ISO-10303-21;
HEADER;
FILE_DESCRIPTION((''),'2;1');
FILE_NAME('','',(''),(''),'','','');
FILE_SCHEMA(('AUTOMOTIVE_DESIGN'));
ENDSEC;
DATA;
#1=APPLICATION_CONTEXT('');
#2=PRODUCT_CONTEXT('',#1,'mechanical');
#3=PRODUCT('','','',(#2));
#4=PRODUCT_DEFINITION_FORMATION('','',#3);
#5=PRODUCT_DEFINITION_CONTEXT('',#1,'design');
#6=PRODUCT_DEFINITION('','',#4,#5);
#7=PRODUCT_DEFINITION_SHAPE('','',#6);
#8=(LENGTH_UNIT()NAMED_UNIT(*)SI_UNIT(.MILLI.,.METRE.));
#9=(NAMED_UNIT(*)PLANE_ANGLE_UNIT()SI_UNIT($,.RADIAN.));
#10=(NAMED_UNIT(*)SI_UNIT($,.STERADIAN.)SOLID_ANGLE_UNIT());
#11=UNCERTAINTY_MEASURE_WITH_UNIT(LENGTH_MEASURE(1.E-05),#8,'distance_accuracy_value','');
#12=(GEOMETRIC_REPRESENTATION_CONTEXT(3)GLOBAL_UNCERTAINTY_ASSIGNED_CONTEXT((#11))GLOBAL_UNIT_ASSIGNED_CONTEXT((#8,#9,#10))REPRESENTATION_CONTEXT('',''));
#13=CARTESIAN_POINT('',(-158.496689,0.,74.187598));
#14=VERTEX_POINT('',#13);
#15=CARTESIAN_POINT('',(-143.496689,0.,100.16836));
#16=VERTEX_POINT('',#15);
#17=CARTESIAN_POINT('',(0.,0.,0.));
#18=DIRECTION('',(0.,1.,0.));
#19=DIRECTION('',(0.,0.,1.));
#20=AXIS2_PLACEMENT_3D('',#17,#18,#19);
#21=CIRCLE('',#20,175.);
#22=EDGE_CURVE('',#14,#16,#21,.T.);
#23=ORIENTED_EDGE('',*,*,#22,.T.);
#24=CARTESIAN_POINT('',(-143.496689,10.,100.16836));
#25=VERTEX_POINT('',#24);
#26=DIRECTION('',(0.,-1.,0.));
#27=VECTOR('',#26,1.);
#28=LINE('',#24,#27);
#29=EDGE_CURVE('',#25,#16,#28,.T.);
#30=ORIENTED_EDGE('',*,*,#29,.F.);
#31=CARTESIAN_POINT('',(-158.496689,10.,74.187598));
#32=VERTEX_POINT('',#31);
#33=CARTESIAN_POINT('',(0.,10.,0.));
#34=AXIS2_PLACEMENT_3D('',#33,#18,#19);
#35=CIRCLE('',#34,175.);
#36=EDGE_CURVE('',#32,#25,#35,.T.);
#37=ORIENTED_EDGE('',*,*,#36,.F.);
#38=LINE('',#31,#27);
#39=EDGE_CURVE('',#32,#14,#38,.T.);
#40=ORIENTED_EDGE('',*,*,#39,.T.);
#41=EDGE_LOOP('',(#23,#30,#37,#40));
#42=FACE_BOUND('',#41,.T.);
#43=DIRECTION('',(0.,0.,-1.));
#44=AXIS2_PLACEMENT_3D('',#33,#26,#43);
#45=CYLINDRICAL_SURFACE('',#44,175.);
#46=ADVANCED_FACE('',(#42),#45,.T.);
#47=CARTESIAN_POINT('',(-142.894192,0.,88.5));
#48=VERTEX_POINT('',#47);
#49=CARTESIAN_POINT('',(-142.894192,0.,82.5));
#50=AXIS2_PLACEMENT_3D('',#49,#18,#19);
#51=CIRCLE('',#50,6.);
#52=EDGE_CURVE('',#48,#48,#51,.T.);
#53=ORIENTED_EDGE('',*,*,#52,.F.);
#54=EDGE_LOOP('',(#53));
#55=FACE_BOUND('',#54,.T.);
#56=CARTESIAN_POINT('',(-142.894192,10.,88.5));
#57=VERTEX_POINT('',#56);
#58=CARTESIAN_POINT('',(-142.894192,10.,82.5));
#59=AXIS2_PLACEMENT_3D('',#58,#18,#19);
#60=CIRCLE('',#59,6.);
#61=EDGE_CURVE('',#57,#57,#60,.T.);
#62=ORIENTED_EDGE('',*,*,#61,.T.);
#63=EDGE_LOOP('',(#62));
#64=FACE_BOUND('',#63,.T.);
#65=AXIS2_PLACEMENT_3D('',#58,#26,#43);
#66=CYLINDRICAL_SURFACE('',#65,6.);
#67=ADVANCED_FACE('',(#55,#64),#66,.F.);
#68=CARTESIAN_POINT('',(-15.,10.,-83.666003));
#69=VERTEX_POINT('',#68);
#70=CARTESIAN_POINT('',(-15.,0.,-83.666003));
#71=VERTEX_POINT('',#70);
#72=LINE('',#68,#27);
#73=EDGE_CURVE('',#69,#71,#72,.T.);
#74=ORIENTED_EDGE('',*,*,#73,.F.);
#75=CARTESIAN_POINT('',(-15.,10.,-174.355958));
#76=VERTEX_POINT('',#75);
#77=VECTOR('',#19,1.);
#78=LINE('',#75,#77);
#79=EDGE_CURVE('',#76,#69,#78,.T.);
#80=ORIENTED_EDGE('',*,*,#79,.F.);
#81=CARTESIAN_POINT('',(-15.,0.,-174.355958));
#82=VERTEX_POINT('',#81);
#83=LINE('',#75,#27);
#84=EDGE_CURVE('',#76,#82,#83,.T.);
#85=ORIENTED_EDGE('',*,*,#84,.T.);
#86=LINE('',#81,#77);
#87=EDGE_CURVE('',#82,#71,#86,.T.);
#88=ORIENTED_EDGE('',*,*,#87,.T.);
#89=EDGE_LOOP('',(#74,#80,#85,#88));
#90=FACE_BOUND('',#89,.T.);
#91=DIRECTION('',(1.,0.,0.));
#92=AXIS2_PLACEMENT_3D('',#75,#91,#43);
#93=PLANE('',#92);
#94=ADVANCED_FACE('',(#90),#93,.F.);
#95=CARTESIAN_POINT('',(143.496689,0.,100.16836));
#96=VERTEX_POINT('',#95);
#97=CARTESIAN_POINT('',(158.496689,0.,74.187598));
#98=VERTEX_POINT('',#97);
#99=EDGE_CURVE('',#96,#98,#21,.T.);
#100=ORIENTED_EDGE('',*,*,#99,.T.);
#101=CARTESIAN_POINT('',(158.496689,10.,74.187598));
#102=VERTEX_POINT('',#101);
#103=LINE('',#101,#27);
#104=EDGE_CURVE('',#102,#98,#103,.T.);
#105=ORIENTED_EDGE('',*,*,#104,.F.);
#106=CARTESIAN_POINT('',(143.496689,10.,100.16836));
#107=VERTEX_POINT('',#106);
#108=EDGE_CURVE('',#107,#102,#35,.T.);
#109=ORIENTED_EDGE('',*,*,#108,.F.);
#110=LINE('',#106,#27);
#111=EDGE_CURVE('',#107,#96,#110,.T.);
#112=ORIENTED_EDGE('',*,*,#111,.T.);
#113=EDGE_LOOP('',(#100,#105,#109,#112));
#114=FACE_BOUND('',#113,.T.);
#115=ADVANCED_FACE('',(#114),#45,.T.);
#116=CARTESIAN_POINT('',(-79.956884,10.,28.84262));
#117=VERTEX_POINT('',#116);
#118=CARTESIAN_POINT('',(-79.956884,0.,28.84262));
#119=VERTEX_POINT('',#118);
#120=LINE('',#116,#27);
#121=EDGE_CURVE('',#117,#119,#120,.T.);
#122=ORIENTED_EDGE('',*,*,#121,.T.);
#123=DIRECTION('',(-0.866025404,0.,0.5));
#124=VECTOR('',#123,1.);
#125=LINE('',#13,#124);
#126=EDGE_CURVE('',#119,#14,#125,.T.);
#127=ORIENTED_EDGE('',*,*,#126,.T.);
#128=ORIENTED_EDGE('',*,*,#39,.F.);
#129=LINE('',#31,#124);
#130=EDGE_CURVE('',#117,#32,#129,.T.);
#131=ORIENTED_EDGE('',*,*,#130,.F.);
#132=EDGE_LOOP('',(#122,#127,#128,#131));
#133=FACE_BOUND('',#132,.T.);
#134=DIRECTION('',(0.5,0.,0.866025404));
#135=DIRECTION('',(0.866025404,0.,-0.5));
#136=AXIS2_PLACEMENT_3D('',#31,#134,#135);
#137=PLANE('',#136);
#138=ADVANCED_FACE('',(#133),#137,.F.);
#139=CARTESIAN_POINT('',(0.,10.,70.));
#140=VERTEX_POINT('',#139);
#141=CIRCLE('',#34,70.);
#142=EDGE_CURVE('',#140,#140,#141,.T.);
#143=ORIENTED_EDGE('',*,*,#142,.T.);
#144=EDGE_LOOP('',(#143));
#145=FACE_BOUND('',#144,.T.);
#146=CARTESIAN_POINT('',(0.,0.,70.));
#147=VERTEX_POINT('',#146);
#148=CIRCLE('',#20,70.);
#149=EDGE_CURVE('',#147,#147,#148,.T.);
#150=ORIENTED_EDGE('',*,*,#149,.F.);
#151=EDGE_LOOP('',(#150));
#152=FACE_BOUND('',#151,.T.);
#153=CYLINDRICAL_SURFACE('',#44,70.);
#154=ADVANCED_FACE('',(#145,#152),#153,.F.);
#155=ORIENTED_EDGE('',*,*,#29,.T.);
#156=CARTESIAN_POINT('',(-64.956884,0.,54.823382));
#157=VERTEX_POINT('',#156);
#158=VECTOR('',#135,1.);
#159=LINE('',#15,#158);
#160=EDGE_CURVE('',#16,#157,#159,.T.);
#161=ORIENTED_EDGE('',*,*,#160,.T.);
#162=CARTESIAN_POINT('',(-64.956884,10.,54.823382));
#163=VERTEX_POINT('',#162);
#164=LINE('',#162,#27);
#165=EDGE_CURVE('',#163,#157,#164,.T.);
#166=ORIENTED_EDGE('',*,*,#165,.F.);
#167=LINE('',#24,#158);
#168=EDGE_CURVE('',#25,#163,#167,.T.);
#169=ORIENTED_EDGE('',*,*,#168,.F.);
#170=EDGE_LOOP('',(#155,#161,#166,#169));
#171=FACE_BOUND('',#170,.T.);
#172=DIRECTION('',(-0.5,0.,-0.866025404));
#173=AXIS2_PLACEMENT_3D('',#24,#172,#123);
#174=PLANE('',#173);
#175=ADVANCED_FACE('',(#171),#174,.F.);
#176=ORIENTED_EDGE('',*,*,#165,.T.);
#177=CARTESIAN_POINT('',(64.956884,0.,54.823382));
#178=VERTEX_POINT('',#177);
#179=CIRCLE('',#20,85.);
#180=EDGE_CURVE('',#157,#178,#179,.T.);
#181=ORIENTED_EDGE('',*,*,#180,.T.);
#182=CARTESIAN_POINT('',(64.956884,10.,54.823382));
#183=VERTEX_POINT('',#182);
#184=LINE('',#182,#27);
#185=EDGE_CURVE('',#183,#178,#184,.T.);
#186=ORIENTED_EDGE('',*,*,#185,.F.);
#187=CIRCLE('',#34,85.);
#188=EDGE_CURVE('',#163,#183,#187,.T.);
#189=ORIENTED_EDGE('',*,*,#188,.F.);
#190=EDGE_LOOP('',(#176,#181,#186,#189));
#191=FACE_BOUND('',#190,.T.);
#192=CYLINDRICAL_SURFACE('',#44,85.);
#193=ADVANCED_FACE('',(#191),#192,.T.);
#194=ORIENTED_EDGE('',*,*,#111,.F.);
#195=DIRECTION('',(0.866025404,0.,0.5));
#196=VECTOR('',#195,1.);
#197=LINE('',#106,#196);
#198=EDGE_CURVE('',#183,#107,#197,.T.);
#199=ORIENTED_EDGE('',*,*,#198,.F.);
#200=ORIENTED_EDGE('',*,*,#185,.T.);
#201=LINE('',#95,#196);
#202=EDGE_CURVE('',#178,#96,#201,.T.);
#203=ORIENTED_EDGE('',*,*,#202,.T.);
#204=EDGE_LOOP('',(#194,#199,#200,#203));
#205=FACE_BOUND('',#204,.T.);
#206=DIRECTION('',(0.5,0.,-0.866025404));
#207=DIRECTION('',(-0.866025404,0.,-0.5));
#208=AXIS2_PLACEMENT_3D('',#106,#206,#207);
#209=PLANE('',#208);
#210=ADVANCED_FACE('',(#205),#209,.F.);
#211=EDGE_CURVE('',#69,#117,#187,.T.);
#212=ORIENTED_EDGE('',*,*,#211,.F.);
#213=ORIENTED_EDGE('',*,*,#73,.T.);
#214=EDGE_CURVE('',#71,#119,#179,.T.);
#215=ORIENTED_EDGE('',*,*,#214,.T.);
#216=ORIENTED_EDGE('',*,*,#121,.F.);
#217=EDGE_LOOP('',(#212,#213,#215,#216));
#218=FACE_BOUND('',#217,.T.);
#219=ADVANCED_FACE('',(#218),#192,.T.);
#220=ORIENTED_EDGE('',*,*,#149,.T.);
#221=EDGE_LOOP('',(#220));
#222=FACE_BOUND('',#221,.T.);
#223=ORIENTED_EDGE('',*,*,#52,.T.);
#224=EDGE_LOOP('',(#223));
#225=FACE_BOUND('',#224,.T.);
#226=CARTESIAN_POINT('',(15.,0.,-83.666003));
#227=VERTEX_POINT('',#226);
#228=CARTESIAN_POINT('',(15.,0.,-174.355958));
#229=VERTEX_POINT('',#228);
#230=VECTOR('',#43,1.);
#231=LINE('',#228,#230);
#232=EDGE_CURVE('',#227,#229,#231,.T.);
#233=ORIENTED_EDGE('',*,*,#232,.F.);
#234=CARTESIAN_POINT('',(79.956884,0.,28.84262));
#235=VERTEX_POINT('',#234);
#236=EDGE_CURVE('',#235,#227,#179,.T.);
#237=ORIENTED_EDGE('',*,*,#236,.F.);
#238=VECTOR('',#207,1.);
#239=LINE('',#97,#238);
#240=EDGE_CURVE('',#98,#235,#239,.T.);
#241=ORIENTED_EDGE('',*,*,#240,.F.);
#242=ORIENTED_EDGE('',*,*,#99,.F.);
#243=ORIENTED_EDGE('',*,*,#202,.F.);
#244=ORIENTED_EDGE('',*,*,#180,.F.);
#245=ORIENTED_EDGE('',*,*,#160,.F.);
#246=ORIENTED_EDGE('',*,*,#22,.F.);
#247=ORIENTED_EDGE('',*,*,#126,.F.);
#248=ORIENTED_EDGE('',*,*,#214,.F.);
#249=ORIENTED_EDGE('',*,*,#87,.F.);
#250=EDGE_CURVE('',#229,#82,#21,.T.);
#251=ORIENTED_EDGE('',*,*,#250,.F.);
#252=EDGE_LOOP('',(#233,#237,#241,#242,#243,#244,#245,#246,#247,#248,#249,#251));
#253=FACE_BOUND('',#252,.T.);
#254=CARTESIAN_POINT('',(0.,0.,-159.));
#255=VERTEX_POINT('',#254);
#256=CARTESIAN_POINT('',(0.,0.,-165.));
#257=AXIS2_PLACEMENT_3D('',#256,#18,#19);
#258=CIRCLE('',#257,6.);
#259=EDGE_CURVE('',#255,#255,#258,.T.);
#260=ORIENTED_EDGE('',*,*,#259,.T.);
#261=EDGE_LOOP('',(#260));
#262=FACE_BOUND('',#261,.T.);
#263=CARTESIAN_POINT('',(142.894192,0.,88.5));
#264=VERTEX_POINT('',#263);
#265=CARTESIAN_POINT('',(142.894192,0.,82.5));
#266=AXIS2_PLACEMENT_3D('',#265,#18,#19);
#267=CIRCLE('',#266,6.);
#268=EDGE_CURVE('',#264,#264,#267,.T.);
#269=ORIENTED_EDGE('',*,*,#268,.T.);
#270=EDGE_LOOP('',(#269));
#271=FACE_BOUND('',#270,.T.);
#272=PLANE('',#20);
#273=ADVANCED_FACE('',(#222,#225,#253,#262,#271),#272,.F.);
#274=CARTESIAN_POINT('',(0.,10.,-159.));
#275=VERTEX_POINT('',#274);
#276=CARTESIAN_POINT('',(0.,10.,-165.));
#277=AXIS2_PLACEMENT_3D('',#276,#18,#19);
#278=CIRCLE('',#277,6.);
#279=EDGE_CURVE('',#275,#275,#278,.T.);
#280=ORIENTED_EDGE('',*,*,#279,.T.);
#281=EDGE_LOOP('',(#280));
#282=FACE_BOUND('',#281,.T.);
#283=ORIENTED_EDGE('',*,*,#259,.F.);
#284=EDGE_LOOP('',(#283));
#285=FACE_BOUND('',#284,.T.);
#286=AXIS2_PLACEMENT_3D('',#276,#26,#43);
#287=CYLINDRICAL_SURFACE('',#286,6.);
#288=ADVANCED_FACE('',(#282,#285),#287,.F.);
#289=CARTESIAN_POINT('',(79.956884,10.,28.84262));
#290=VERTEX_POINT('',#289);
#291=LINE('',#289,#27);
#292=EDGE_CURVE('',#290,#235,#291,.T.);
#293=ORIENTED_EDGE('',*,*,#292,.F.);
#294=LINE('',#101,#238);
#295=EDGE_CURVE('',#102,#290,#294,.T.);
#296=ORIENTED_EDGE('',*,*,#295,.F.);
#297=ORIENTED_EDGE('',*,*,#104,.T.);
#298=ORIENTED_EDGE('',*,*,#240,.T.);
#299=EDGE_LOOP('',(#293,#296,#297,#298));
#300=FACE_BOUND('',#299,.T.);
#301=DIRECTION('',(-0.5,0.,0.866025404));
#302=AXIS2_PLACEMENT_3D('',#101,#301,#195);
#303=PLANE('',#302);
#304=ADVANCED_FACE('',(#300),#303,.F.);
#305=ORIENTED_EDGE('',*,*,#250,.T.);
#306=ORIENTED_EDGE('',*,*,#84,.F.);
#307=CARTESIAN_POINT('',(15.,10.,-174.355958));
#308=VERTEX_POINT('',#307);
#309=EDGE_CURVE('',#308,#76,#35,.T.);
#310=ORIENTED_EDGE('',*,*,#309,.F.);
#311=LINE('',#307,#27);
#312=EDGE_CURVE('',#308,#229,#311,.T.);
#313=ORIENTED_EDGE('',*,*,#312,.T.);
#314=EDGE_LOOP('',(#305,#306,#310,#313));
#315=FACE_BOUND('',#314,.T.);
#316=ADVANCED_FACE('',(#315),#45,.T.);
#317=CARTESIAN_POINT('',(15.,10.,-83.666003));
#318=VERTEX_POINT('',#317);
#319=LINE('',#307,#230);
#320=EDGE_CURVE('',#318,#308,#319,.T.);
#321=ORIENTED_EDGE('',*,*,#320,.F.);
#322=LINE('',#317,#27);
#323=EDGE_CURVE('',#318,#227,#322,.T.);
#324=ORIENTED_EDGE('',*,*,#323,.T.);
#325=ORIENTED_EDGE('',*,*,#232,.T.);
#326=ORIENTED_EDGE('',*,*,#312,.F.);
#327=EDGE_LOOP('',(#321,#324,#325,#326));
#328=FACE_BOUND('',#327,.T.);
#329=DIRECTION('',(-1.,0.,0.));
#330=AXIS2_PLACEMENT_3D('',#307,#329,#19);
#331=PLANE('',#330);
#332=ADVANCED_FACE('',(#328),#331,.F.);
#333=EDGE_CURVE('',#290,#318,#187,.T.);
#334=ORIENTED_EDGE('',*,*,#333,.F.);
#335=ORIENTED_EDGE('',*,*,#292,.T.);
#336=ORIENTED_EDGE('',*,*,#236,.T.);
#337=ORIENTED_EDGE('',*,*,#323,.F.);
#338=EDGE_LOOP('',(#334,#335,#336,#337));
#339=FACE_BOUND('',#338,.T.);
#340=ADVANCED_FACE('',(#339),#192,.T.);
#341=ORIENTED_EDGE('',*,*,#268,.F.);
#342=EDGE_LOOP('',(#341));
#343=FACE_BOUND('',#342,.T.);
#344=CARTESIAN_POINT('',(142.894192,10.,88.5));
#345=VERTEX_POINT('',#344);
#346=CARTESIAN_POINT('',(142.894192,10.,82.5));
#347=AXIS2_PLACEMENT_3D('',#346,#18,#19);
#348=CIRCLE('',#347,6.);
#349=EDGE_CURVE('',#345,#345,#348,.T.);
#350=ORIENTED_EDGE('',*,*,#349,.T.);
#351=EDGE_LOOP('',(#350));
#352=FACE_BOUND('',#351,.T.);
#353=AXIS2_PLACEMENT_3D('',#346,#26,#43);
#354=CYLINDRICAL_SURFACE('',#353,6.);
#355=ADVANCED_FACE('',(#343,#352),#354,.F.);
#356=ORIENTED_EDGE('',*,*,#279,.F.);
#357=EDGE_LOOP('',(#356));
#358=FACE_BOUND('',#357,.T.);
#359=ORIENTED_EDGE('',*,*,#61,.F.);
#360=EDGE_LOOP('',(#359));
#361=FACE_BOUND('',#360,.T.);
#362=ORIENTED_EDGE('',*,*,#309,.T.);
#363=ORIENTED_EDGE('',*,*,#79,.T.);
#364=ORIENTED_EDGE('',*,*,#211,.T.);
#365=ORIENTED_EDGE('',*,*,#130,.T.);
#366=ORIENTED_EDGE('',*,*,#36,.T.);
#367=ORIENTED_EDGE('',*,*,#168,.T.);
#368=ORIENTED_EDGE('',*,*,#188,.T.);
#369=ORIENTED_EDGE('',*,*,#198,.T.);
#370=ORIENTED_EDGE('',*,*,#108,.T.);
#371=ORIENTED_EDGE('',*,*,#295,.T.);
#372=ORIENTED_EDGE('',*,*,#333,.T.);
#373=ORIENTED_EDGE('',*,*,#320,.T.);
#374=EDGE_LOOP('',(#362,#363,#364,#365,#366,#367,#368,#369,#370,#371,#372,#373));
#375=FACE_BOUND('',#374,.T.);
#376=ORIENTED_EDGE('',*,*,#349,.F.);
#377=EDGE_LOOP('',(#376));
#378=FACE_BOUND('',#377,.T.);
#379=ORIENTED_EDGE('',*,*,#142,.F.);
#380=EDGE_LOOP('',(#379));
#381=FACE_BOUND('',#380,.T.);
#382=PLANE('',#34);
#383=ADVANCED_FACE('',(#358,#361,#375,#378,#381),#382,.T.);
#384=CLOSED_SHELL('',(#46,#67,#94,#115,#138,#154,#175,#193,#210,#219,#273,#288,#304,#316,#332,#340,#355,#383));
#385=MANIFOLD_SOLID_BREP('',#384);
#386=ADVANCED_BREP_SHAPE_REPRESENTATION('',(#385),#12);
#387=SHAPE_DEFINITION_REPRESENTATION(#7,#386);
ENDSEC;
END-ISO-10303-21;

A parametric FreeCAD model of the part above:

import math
import FreeCAD as App
import Part
import Sketcher
from FreeCAD import Vector
Q = App.Units.Quantity

doc = App.newDocument("Part")
body = doc.addObject("PartDesign::Body", "Body")

sketch1 = doc.addObject("Sketcher::SketchObject", "Sketch")
body.addObject(sketch1)
sketch1.AttachmentSupport = (doc.XZ_Plane, [""])
sketch1.MapMode = "FlatFace"
sketch1.addGeometry([
    Part.LineSegment(Vector(64.956884, 54.823382, 0), Vector(143.496689, 100.16836, 0)),
    Part.ArcOfCircle(Part.Circle(Vector(0, 0, 0), Vector(0, 0, 1), 175), math.radians(25.0829), math.radians(34.9171)),
    Part.LineSegment(Vector(158.496689, 74.187598, 0), Vector(79.956884, 28.84262, 0)),
    Part.ArcOfCircle(Part.Circle(Vector(0, 0, 0), Vector(0, 0, 1), 85), math.radians(-79.835751), math.radians(19.835751)),
    Part.LineSegment(Vector(15, -83.666003, 0), Vector(15, -174.355958, 0)),
    Part.ArcOfCircle(Part.Circle(Vector(0, 0, 0), Vector(0, 0, 1), 175), math.radians(-94.9171), math.radians(-85.0829)),
    Part.LineSegment(Vector(-15, -174.355958, 0), Vector(-15, -83.666003, 0)),
    Part.ArcOfCircle(Part.Circle(Vector(0, 0, 0), Vector(0, 0, 1), 85), math.radians(160.164249), math.radians(259.835751)),
    Part.LineSegment(Vector(-79.956884, 28.84262, 0), Vector(-158.496689, 74.187598, 0)),
    Part.ArcOfCircle(Part.Circle(Vector(0, 0, 0), Vector(0, 0, 1), 175), math.radians(145.0829), math.radians(154.9171)),
    Part.LineSegment(Vector(-143.496689, 100.16836, 0), Vector(-64.956884, 54.823382, 0)),
    Part.ArcOfCircle(Part.Circle(Vector(0, 0, 0), Vector(0, 0, 1), 85), math.radians(40.164249), math.radians(139.835751)),
    Part.Circle(Vector(142.894192, 82.5, 0), Vector(0, 0, 1), 6),
    Part.Circle(Vector(-142.894192, 82.5, 0), Vector(0, 0, 1), 6),
    Part.Circle(Vector(0, 0, 0), Vector(0, 0, 1), 70),
    Part.Circle(Vector(0, -165, 0), Vector(0, 0, 1), 6),
], False)
sketch1.addConstraint([
    Sketcher.Constraint("Coincident", 0, 2, 1, 2),
    Sketcher.Constraint("Coincident", 1, 1, 2, 1),
    Sketcher.Constraint("Coincident", 2, 2, 3, 2),
    Sketcher.Constraint("Coincident", 3, 1, 4, 1),
    Sketcher.Constraint("Coincident", 4, 2, 5, 2),
    Sketcher.Constraint("Coincident", 5, 1, 6, 1),
    Sketcher.Constraint("Coincident", 6, 2, 7, 2),
    Sketcher.Constraint("Coincident", 7, 1, 8, 1),
    Sketcher.Constraint("Coincident", 8, 2, 9, 2),
    Sketcher.Constraint("Coincident", 9, 1, 10, 1),
    Sketcher.Constraint("Coincident", 10, 2, 11, 2),
    Sketcher.Constraint("Coincident", 11, 1, 0, 1),
    Sketcher.Constraint("Vertical", 4),
    Sketcher.Constraint("Vertical", 6),
    Sketcher.Constraint("Coincident", 1, 3, -1, 1),
    Sketcher.Constraint("Coincident", 3, 3, -1, 1),
    Sketcher.Constraint("Coincident", 5, 3, -1, 1),
    Sketcher.Constraint("Coincident", 7, 3, -1, 1),
    Sketcher.Constraint("Coincident", 9, 3, -1, 1),
    Sketcher.Constraint("Coincident", 11, 3, -1, 1),
    Sketcher.Constraint("Coincident", 14, 3, -1, 1),
    Sketcher.Constraint("Equal", 1, 5),
    Sketcher.Constraint("Equal", 3, 7),
    Sketcher.Constraint("Equal", 5, 9),
    Sketcher.Constraint("Equal", 7, 11),
    Sketcher.Constraint("Equal", 12, 13),
    Sketcher.Constraint("Equal", 13, 15),
    Sketcher.Constraint("Symmetric", 12, 3, 13, 3, -2),
    Sketcher.Constraint("PointOnObject", 15, 3, -2),
    Sketcher.Constraint("Parallel", 0, 2),
    Sketcher.Constraint("Parallel", 8, 10),
    Sketcher.Constraint("Horizontal", 4, 2, 5, 1),
    Sketcher.Constraint("Horizontal", 2, 2, 7, 1),
    Sketcher.Constraint("Horizontal", 1, 1, 8, 2),
    Sketcher.Constraint("Horizontal", 0, 2, 9, 1),
    Sketcher.Constraint("Equal", 0, 2),
    Sketcher.Constraint("Diameter", 12, 12.0),
    Sketcher.Constraint("Diameter", 14, 140.0),
    Sketcher.Constraint("Radius", 1, 175.0),
    Sketcher.Constraint("Radius", 3, 85.0),
    Sketcher.Constraint("Angle", 0, Q("30 deg")),
    Sketcher.Constraint("DistanceY", 15, 3, -1, 1, 165.0),
    Sketcher.Constraint("DistanceX", -1, 1, 3, 1, 15.0),
    Sketcher.Constraint("DistanceX", 0, 2, 1, 1, 15.0),
    Sketcher.Constraint("DistanceY", -1, 1, 12, 3, 82.5),
    Sketcher.Constraint("DistanceX", -1, 1, 12, 3, 142.894192),
])
pad1 = doc.addObject("PartDesign::Pad", "Pad")
body.addObject(pad1)
pad1.Profile = sketch1
pad1.Length = 10
pad1.Reversed = True

doc.recompute()
